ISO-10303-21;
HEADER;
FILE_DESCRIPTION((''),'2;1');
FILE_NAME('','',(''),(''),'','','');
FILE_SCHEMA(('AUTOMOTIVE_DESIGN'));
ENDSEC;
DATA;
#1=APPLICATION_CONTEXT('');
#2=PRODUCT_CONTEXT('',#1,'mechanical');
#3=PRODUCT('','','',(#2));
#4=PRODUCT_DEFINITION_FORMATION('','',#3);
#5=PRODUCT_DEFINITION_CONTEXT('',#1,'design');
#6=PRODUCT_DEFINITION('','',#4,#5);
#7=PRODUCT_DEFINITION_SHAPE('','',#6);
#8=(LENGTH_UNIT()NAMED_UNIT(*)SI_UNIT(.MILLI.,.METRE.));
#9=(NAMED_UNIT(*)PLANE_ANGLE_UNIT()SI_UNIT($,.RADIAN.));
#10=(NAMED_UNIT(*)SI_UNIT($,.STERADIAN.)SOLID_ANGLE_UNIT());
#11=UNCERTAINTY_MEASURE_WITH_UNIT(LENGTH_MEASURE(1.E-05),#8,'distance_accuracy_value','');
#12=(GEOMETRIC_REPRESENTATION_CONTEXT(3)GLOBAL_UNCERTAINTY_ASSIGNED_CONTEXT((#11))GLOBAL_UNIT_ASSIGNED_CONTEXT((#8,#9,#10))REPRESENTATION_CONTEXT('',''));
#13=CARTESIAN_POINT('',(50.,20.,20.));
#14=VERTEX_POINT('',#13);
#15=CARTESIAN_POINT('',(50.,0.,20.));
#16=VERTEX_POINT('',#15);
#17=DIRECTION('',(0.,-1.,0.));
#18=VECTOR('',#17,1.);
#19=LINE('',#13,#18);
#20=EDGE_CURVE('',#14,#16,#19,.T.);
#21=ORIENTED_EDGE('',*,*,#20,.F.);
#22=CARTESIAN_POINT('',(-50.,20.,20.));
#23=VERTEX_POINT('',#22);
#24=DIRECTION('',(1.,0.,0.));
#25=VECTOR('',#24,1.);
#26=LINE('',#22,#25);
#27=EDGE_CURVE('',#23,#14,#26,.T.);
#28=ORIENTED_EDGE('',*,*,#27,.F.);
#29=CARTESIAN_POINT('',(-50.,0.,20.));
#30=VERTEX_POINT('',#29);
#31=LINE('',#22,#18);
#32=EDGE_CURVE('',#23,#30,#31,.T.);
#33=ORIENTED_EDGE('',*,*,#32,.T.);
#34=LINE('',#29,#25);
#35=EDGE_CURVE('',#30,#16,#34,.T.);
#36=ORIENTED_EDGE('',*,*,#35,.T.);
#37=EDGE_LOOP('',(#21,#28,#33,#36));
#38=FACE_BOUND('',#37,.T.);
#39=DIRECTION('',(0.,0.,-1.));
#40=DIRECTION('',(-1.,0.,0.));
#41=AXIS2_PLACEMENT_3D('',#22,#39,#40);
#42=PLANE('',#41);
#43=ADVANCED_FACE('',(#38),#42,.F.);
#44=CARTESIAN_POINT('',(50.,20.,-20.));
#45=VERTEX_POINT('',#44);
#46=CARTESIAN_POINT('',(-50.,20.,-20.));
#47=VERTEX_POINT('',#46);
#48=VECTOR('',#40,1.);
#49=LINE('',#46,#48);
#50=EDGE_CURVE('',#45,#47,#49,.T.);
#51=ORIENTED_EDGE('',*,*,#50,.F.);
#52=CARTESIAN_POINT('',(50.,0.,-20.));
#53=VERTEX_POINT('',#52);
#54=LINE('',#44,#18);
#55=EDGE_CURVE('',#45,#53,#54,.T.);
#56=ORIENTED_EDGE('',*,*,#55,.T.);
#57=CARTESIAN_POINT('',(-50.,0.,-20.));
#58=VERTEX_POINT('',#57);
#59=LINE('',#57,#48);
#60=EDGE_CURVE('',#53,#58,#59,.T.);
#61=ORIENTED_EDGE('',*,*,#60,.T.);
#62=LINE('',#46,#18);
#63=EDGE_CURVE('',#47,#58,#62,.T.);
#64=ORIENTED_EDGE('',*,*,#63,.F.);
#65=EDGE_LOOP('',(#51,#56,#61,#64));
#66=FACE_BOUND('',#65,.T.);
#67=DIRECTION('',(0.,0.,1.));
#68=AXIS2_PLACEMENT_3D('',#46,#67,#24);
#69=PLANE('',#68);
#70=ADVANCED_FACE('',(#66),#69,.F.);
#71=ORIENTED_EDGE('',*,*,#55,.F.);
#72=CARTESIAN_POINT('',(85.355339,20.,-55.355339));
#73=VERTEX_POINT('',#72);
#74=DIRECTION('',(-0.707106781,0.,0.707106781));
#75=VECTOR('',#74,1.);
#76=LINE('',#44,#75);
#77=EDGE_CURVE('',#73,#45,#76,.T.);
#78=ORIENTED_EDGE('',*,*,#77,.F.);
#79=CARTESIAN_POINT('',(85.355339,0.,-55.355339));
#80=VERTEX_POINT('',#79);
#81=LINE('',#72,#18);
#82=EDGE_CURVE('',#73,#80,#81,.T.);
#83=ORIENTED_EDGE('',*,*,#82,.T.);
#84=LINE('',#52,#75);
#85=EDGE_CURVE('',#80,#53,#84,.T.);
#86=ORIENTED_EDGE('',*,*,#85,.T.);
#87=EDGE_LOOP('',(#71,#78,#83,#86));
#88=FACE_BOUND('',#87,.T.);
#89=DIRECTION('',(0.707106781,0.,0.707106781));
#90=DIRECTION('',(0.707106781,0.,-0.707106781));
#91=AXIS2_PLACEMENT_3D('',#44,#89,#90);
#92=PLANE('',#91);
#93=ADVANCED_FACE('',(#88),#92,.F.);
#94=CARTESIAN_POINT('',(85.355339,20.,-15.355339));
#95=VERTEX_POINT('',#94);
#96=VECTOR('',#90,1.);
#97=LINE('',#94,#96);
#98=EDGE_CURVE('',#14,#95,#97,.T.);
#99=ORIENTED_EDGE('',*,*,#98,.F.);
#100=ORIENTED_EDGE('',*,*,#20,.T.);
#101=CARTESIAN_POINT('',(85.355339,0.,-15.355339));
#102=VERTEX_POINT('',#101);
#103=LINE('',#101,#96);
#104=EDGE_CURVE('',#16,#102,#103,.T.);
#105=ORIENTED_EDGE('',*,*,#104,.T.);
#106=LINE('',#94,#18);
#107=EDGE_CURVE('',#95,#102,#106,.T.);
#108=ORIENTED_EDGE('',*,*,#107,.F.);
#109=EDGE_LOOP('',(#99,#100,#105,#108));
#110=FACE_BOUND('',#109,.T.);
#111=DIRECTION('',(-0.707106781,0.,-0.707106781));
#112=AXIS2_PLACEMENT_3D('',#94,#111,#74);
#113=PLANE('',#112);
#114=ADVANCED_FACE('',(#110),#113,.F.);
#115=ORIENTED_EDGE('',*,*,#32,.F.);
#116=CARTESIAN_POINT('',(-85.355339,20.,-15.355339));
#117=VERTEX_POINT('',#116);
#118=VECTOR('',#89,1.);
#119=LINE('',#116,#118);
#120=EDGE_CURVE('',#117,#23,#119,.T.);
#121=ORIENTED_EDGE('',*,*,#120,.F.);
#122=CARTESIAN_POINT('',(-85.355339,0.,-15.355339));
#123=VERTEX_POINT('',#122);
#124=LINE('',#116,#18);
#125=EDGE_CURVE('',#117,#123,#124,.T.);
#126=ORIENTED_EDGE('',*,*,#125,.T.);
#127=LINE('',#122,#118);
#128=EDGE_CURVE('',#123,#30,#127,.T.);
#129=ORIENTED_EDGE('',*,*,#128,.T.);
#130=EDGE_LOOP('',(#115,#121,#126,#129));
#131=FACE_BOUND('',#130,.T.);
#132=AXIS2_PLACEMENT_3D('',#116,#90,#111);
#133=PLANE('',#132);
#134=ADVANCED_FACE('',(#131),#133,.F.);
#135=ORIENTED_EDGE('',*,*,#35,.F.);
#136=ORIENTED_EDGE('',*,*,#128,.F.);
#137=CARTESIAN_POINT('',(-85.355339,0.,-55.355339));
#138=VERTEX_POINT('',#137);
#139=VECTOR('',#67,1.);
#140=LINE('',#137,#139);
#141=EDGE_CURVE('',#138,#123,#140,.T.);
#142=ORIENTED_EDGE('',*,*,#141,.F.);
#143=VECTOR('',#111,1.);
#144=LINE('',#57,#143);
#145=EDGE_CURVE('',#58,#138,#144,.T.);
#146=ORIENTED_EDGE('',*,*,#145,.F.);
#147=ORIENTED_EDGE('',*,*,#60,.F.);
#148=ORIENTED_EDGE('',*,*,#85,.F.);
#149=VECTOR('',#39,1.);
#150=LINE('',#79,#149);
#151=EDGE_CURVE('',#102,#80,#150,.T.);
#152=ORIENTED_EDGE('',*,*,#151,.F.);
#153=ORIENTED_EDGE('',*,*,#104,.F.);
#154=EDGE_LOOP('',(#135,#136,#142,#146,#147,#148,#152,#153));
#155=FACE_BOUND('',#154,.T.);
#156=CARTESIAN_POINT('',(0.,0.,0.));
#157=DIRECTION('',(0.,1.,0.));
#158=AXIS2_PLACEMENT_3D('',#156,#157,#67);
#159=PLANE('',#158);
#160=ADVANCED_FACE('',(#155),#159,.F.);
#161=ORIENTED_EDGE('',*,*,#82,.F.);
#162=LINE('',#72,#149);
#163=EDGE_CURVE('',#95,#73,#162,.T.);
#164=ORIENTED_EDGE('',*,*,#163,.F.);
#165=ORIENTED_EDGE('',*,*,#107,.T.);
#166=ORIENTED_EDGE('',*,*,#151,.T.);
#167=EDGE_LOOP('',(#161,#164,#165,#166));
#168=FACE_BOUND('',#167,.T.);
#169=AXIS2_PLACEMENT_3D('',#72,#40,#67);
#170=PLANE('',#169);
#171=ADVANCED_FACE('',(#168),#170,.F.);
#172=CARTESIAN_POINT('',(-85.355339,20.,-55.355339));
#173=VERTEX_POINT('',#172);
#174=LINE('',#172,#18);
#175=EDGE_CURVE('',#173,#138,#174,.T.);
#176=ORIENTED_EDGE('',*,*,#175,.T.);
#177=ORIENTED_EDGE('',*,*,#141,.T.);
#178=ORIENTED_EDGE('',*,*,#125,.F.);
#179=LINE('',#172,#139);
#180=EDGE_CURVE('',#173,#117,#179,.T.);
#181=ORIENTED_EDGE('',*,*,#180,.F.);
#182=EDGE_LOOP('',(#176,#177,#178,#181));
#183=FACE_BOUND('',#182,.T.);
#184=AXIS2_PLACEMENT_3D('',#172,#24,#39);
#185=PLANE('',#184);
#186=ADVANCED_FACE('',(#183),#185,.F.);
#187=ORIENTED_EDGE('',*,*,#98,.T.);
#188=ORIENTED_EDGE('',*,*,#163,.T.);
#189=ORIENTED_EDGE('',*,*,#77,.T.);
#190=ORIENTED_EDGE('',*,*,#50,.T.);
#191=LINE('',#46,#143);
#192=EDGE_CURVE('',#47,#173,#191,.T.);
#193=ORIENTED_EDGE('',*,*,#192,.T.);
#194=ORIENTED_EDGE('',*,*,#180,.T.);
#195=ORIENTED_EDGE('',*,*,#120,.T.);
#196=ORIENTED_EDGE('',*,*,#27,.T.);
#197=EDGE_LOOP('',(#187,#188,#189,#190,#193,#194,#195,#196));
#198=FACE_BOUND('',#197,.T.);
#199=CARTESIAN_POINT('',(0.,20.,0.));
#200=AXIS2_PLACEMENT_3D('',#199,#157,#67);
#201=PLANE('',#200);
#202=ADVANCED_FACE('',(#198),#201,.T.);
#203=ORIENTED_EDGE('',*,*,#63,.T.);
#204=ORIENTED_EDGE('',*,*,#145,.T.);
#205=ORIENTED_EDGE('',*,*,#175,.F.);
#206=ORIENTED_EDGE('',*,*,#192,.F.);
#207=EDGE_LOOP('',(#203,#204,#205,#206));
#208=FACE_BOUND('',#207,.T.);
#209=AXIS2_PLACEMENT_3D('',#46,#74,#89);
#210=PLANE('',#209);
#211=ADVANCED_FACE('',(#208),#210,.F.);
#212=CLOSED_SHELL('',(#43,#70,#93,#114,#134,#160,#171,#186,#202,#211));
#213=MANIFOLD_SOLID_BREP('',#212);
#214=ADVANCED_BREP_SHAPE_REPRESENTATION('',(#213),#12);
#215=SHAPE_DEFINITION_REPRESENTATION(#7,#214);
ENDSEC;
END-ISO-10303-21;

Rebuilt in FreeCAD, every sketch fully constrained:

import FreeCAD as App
import Part
import Sketcher


def add_polygon(sketch, points):
    """Adds a closed chain of lines whose ends are joined by coincident constraints."""
    first, n = sketch.GeometryCount, len(points)
    for a, b in zip(points, points[1:] + points[:1]):
        sketch.addGeometry(Part.LineSegment(App.Vector(*a, 0), App.Vector(*b, 0)), False)
    for i in range(n):
        sketch.addConstraint(Sketcher.Constraint("Coincident", first + i, 2, first + (i + 1) % n, 1))

doc = App.newDocument("Part")
params = doc.addObject("Spreadsheet::Sheet", "Params")
for row, (alias, value) in enumerate([
    ("sketch1_width", "100 mm"),
    ("sketch1_height", "40 mm"),
    ("sketch1_length", "50 mm"),
    ("pad1_length", "20 mm"),
], start=1):
    params.set(f"A{row}", alias)
    params.set(f"B{row}", "=" + value)
    params.setAlias(f"B{row}", alias)

body = doc.addObject("PartDesign::Body", "Body")

# Sketch on XZ plane
sketch1 = body.newObject("Sketcher::SketchObject", "Sketch")
sketch1.AttachmentSupport = (doc.getObject("XZ_Plane"), [""])
sketch1.MapMode = "FlatFace"
add_polygon(sketch1, [(85.355339, -55.355339), (50, -20), (-50, -20), (-85.355339, -55.355339), (-85.355339, -15.355339), (-50, 20), (50, 20), (85.355339, -15.355339)])  # lines 0-7
sketch1.addConstraint([
    Sketcher.Constraint("Horizontal", 1),
    Sketcher.Constraint("Vertical", 3),
    Sketcher.Constraint("Horizontal", 5),
    Sketcher.Constraint("Vertical", 7),
    Sketcher.Constraint("Symmetric", 0, 2, 4, 2, -1, 1),
    Sketcher.Constraint("Symmetric", 3, 2, 6, 2, -2),
    Sketcher.Constraint("Perpendicular", 0, 2),
    Sketcher.Constraint("Parallel", 2, 4),
    Sketcher.Constraint("Perpendicular", 4, 6),
    Sketcher.Constraint("Horizontal", 2, 2, 7, 2),
    Sketcher.Constraint("Vertical", 1, 2, 4, 2),
    Sketcher.Constraint("DistanceX", 1, 2, 1, 1, 100.0),
    Sketcher.Constraint("DistanceY", 3, 1, 3, 2, 40.0),
    Sketcher.Constraint("Distance", 0, 50.0),
])
sketch1.setExpression("Constraints[19]", "Params.sketch1_width")
sketch1.setExpression("Constraints[20]", "Params.sketch1_height")
sketch1.setExpression("Constraints[21]", "Params.sketch1_length")
pad1 = body.newObject("PartDesign::Pad", "Pad")
pad1.Profile = sketch1
pad1.setExpression("Length", "Params.pad1_length")
pad1.Reversed = True

doc.recompute()
